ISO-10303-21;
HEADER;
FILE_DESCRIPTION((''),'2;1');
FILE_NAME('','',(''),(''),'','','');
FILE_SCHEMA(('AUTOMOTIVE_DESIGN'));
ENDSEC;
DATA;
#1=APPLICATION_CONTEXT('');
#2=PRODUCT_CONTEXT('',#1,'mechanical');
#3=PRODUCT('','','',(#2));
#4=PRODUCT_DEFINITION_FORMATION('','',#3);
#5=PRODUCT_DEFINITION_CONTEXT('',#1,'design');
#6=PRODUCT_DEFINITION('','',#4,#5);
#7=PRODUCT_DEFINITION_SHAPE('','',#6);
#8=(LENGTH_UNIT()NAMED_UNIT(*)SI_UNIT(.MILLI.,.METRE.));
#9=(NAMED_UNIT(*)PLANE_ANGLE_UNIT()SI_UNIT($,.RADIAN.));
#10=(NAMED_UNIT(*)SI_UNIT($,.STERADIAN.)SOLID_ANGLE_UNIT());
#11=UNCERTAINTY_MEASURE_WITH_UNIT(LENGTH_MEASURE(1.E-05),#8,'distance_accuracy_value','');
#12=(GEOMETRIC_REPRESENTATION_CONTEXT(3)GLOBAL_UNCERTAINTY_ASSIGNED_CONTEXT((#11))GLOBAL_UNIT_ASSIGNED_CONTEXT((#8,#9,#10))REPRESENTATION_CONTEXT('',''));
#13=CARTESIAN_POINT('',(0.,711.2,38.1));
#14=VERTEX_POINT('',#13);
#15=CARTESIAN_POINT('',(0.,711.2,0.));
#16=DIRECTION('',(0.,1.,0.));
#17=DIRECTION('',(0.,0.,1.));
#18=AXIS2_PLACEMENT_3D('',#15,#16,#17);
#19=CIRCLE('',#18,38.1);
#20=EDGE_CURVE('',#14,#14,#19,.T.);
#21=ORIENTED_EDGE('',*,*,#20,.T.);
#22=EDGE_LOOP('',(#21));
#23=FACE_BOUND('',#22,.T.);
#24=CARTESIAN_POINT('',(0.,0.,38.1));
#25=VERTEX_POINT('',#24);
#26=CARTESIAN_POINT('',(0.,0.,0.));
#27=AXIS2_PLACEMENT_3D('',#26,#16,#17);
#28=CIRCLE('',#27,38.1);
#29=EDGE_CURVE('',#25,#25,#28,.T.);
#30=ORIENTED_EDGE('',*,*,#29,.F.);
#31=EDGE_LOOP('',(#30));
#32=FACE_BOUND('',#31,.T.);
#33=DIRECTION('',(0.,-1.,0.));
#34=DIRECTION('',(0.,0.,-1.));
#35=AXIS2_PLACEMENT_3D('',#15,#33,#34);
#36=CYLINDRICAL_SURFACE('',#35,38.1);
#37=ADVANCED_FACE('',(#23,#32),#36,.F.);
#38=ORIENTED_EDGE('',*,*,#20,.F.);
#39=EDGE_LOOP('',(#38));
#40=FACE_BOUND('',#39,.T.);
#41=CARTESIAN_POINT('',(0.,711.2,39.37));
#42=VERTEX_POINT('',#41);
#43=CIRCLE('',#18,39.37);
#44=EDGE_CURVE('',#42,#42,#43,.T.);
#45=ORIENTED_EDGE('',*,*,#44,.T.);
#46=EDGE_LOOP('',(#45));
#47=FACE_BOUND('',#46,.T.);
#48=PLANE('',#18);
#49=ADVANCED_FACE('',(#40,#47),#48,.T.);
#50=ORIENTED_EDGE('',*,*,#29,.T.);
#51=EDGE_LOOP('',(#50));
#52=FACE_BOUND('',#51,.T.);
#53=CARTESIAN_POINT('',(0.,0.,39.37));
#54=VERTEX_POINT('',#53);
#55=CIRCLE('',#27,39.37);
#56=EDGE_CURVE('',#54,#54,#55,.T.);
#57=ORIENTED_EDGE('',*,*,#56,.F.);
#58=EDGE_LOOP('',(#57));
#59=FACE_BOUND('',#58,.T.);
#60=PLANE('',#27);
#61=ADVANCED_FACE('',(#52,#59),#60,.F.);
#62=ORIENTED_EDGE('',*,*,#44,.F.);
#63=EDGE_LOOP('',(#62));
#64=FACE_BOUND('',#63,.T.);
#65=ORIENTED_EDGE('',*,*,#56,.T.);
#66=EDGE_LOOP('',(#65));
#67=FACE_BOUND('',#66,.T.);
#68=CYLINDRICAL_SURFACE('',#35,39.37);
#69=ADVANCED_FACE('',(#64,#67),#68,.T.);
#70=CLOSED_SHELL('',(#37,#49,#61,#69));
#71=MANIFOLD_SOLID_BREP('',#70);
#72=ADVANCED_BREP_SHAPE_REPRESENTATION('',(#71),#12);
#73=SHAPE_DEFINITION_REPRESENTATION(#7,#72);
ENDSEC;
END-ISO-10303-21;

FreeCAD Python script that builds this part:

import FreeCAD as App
import Part
import Sketcher
from FreeCAD import Vector
Q = App.Units.Quantity

doc = App.newDocument("Part")
body = doc.addObject("PartDesign::Body", "Body")

sketch1 = body.newObject("Sketcher::SketchObject", "Sketch")
sketch1.AttachmentSupport = (doc.getObject("XZ_Plane"), [""])
sketch1.MapMode = "FlatFace"
sketch1.addGeometry([
    Part.Circle(Vector(0, 0, 0), Vector(0, 0, 1), 39),
    Part.Circle(Vector(0, 0, 0), Vector(0, 0, 1), 38),
], False)
sketch1.addConstraint([
    Sketcher.Constraint("Coincident", 0, 3, -1, 1),
    Sketcher.Constraint("Coincident", 1, 3, -1, 1),
    Sketcher.Constraint("Diameter", 1, Q("3 in")),
    Sketcher.Constraint("Diameter", 0, Q("3.1 in")),
])
pad1 = body.newObject("PartDesign::Pad", "Pad")
pad1.Profile = sketch1
pad1.Length = Q("28 in")
pad1.Reversed = True

doc.recompute()
